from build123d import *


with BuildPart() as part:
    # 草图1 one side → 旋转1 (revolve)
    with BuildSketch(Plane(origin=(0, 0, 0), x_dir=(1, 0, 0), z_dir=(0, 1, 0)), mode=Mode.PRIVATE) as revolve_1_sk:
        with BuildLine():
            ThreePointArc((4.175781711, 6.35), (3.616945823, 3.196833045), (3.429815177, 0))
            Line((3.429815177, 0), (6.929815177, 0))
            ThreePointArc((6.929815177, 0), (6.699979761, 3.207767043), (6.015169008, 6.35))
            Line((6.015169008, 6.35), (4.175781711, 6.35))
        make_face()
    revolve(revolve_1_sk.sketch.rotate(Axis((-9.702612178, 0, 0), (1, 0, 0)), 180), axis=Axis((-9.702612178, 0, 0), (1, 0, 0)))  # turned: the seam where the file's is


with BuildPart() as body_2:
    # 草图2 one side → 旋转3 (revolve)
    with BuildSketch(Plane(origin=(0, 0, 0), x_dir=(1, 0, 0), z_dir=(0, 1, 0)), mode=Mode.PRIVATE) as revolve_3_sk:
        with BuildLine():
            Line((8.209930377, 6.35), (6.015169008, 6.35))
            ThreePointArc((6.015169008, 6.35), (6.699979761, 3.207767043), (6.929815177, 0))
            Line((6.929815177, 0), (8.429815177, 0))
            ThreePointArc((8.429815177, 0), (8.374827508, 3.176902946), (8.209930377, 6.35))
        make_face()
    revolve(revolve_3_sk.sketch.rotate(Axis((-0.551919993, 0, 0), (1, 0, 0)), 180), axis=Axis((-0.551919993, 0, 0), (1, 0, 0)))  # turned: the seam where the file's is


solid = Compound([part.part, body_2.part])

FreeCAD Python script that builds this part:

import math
import FreeCAD as App
import Part
import Sketcher

V = App.Vector
Q = App.Units.Quantity

doc = App.newDocument("Part")
body = doc.addObject("PartDesign::Body", "Body")

# Sketch on XZ plane
sketch1 = body.newObject("Sketcher::SketchObject", "Sketch")
sketch1.AttachmentSupport = (doc.getObject("XZ_Plane"), [""])
sketch1.MapMode = "FlatFace"
sketch1.addGeometry([
    Part.ArcOfCircle(Part.Circle(V(30.829815, 0, 0), V(0, 0, 1), 27.4), math.radians(-180), math.radians(-166.599769)),
    Part.LineSegment(V(3.429815, 0, 0), V(6.929815, 0, 0)),
    Part.ArcOfCircle(Part.Circle(V(-15.570185, 0, 0), V(0, 0, 1), 22.5), math.radians(-16.392879), math.radians(0)),
    Part.LineSegment(V(6.015169, -6.35, 0), V(4.175782, -6.35, 0)),
], False)
sketch1.addConstraint([
    Sketcher.Constraint("Coincident", 0, 1, 1, 1),
    Sketcher.Constraint("Coincident", 1, 2, 2, 2),
    Sketcher.Constraint("Coincident", 2, 1, 3, 1),
    Sketcher.Constraint("Coincident", 3, 2, 0, 2),
    Sketcher.Constraint("Horizontal", 1),
    Sketcher.Constraint("Horizontal", 3),
    Sketcher.Constraint("PointOnObject", 0, 3, -1),
    Sketcher.Constraint("PointOnObject", 2, 3, -1),
    Sketcher.Constraint("PointOnObject", 0, 1, -1),
    Sketcher.Constraint("Radius", 0, Q("27.4 mm")),
    Sketcher.Constraint("Radius", 2, Q("22.5 mm")),
    Sketcher.Constraint("DistanceX", 1, 1, 1, 2, Q("3.5 mm")),
    Sketcher.Constraint("DistanceY", 2, 1, -1, 1, Q("6.35 mm")),
    Sketcher.Constraint("DistanceX", -1, 1, 2, 1, Q("6.015169 mm")),
])
revolution = body.newObject("PartDesign::Revolution", "Revolution")
revolution.Profile = sketch1
revolution.ReferenceAxis = (sketch1, ["H_Axis"])
revolution.Angle = 360
body2 = doc.addObject("PartDesign::Body", "Body001")

# Sketch on XZ plane
sketch2 = body2.newObject("Sketcher::SketchObject", "Sketch001")
sketch2.AttachmentSupport = (doc.getObject("XZ_Plane001"), [""])
sketch2.MapMode = "FlatFace"
sketch2.addGeometry([
    Part.LineSegment(V(8.20993, -6.35, 0), V(6.015169, -6.35, 0)),
    Part.ArcOfCircle(Part.Circle(V(-15.570185, 0, 0), V(0, 0, 1), 22.5), math.radians(-16.392879), math.radians(0)),
    Part.LineSegment(V(6.929815, 0, 0), V(8.429815, 0, 0)),
    Part.ArcOfCircle(Part.Circle(V(-83.370186, 0, 0), V(0, 0, 1), 91.800001), math.radians(-3.966438), math.radians(0)),
], False)
sketch2.addConstraint([
    Sketcher.Constraint("Coincident", 0, 2, 1, 1),
    Sketcher.Constraint("Coincident", 1, 2, 2, 1),
    Sketcher.Constraint("Coincident", 2, 2, 3, 2),
    Sketcher.Constraint("Coincident", 3, 1, 0, 1),
    Sketcher.Constraint("Horizontal", 0),
    Sketcher.Constraint("Horizontal", 2),
    Sketcher.Constraint("PointOnObject", 1, 3, -1),
    Sketcher.Constraint("PointOnObject", 3, 3, -1),
    Sketcher.Constraint("PointOnObject", 1, 2, -1),
    Sketcher.Constraint("Radius", 1, Q("22.5 mm")),
    Sketcher.Constraint("Radius", 3, Q("91.800001 mm")),
    Sketcher.Constraint("DistanceX", 2, 1, 2, 2, Q("1.5 mm")),
    Sketcher.Constraint("DistanceY", 0, 2, -1, 1, Q("6.35 mm")),
    Sketcher.Constraint("DistanceX", -1, 1, 0, 2, Q("6.015169 mm")),
])
revolution2 = body2.newObject("PartDesign::Revolution", "Revolution001")
revolution2.Profile = sketch2
revolution2.ReferenceAxis = (sketch2, ["H_Axis"])
revolution2.Angle = 360

doc.recompute()
